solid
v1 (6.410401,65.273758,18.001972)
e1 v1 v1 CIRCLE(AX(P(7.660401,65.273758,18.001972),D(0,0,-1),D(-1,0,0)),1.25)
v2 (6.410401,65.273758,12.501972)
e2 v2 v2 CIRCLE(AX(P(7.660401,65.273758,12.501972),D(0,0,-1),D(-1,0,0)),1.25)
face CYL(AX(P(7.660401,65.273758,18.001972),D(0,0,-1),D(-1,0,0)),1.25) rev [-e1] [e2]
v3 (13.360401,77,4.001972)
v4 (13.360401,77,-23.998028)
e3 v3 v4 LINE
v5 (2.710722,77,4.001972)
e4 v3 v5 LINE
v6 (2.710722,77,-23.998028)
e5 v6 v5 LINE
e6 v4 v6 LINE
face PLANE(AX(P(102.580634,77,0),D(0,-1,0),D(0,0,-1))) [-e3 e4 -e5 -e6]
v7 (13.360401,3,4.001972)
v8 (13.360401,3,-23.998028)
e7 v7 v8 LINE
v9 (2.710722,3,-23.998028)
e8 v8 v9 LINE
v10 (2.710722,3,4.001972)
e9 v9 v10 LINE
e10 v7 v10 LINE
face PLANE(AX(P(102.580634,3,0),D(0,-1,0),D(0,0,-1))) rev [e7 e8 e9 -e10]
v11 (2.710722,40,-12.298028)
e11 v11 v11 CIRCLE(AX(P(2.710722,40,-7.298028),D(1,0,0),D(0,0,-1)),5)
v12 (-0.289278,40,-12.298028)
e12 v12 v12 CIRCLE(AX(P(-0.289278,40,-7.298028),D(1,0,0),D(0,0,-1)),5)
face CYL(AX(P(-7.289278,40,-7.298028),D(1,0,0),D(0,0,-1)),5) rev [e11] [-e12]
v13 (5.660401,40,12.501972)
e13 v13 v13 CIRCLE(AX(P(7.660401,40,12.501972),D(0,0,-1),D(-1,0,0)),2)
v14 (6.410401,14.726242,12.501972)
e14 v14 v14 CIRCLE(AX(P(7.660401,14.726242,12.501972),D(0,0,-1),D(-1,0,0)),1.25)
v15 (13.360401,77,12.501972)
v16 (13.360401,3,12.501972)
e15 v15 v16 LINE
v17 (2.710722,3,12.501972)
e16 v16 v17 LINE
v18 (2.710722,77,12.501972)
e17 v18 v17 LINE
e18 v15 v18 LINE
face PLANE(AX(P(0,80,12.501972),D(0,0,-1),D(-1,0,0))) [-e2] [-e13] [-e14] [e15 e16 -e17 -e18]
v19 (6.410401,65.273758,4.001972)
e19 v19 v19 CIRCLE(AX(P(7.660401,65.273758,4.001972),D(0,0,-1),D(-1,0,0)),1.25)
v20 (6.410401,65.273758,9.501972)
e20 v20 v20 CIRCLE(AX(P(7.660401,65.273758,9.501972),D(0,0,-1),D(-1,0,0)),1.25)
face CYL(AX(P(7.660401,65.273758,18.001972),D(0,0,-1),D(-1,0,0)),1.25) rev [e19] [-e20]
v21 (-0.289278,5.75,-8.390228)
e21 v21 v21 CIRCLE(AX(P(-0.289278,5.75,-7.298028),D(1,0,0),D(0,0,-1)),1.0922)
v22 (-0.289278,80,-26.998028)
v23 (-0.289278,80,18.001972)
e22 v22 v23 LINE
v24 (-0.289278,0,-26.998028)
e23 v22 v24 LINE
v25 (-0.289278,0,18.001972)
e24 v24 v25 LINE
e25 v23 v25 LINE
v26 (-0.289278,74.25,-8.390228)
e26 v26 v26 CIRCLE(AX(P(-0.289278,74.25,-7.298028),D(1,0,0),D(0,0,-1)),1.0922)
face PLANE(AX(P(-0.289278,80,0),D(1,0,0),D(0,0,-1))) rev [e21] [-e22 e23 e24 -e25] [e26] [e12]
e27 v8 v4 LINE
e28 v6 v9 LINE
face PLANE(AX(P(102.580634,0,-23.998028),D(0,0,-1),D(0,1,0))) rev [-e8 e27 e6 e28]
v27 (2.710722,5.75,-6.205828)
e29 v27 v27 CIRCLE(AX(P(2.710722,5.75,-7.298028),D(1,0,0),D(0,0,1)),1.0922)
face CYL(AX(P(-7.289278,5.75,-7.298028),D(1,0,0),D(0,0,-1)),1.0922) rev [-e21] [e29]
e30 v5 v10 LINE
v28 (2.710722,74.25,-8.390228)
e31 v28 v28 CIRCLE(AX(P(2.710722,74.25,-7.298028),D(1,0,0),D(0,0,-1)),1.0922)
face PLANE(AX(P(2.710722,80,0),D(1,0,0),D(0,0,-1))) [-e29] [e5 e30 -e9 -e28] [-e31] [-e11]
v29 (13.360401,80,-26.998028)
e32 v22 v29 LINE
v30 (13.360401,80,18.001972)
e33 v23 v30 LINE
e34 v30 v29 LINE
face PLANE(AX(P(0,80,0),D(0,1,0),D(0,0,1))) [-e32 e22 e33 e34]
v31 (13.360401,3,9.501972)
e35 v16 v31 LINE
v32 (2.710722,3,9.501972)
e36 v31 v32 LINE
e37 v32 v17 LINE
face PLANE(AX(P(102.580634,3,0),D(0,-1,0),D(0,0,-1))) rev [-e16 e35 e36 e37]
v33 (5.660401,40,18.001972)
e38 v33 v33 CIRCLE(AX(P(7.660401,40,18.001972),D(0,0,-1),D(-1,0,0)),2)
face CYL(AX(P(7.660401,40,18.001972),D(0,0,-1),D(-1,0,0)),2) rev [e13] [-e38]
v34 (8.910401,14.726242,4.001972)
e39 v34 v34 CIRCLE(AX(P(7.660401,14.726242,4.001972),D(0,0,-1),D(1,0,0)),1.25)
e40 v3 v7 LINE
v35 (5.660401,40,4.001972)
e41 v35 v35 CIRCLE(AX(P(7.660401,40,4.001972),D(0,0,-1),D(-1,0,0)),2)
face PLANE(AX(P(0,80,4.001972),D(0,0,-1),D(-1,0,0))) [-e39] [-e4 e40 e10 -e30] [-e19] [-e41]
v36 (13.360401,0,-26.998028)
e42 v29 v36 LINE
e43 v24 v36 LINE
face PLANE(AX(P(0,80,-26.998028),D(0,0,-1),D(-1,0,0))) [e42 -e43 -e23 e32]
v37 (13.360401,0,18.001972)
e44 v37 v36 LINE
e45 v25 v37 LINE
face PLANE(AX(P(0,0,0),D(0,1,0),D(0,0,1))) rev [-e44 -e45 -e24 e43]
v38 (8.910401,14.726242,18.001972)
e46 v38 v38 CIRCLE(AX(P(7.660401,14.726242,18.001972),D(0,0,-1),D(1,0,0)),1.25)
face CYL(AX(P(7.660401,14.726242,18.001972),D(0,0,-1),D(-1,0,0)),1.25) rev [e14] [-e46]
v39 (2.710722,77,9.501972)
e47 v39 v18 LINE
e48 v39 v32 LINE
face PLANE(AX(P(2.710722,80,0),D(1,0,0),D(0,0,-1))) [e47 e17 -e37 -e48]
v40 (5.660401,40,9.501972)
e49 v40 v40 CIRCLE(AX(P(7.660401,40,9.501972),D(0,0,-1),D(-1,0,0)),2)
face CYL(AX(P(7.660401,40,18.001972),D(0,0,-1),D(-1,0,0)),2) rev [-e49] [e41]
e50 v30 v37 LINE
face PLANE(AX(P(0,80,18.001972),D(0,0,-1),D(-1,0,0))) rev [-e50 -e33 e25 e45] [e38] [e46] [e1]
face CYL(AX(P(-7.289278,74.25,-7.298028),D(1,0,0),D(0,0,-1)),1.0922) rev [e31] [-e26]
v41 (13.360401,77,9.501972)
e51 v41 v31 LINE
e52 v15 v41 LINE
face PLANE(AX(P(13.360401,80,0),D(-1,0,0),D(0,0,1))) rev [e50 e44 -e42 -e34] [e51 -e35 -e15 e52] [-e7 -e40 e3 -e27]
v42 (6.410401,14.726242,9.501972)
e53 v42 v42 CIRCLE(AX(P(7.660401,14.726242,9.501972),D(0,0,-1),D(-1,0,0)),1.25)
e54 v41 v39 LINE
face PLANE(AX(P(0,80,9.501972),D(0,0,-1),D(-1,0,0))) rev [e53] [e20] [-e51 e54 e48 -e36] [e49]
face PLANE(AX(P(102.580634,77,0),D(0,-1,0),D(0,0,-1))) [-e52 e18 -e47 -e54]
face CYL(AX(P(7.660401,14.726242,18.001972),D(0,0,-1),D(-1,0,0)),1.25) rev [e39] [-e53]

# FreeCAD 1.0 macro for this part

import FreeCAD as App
import Part
import Sketcher
Q = App.Units.Quantity

doc = App.newDocument("Part")
body = doc.addObject("PartDesign::Body", "Body")

# Sketch on XZ plane
sketch1 = body.newObject("Sketcher::SketchObject", "Sketch")
sketch1.AttachmentSupport = (doc.getObject("XZ_Plane"), [""])
sketch1.MapMode = "FlatFace"
sketch1.addGeometry([
    Part.LineSegment(App.Vector(2.7, 9.5, 0), App.Vector(13.4, 9.5, 0)),  # 0
    Part.LineSegment(App.Vector(13.4, 9.5, 0), App.Vector(13.4, 4, 0)),  # 1
    Part.LineSegment(App.Vector(13.4, 4, 0), App.Vector(2.7, 4, 0)),  # 2
    Part.LineSegment(App.Vector(2.7, 4, 0), App.Vector(2.7, -27, 0)),  # 3
    Part.LineSegment(App.Vector(2.7, -27, 0), App.Vector(-0.3, -27, 0)),  # 4
    Part.LineSegment(App.Vector(-0.3, -27, 0), App.Vector(-0.3, 18, 0)),  # 5
    Part.LineSegment(App.Vector(-0.3, 18, 0), App.Vector(13.4, 18, 0)),  # 6
    Part.LineSegment(App.Vector(13.4, 18, 0), App.Vector(13.4, 12.5, 0)),  # 7
    Part.LineSegment(App.Vector(13.4, 12.5, 0), App.Vector(2.7, 12.5, 0)),  # 8
    Part.LineSegment(App.Vector(2.7, 12.5, 0), App.Vector(2.7, 9.5, 0)),  # 9
], False)
sketch1.addConstraint([
    Sketcher.Constraint("Coincident", 0, 2, 1, 1),
    Sketcher.Constraint("Coincident", 1, 2, 2, 1),
    Sketcher.Constraint("Coincident", 2, 2, 3, 1),
    Sketcher.Constraint("Coincident", 3, 2, 4, 1),
    Sketcher.Constraint("Coincident", 4, 2, 5, 1),
    Sketcher.Constraint("Coincident", 5, 2, 6, 1),
    Sketcher.Constraint("Coincident", 6, 2, 7, 1),
    Sketcher.Constraint("Coincident", 7, 2, 8, 1),
    Sketcher.Constraint("Coincident", 8, 2, 9, 1),
    Sketcher.Constraint("Coincident", 9, 2, 0, 1),
    Sketcher.Constraint("Horizontal", 0),
    Sketcher.Constraint("Vertical", 1),
    Sketcher.Constraint("Horizontal", 2),
    Sketcher.Constraint("Vertical", 3),
    Sketcher.Constraint("Horizontal", 4),
    Sketcher.Constraint("Vertical", 5),
    Sketcher.Constraint("Horizontal", 6),
    Sketcher.Constraint("Vertical", 7),
    Sketcher.Constraint("Horizontal", 8),
    Sketcher.Constraint("Vertical", 9),
    Sketcher.Constraint("Vertical", 1, 2, 6, 2),
    Sketcher.Constraint("Vertical", 3, 2, 8, 2),
    Sketcher.Constraint("Equal", 1, 7),
    Sketcher.Constraint("Equal", 4, 9),
    Sketcher.Constraint("DistanceX", 4, 2, 4, 1, Q("3 mm")),
    Sketcher.Constraint("DistanceY", 3, 2, 3, 1, Q("31 mm")),
    Sketcher.Constraint("DistanceY", 5, 1, 5, 2, Q("45 mm")),
    Sketcher.Constraint("DistanceX", 0, 1, 0, 2, Q("10.649679 mm")),
    Sketcher.Constraint("DistanceX", -1, 1, 0, 2, Q("13.360401 mm")),
    Sketcher.Constraint("DistanceY", -1, 1, 0, 2, Q("9.501972 mm")),
])
pad1 = body.newObject("PartDesign::Pad", "Pad")
pad1.Profile = sketch1
pad1.Length = 80
pad1.Reversed = True

# Sketch on XY plane
sketch2 = body.newObject("Sketcher::SketchObject", "Sketch001")
sketch2.AttachmentSupport = (doc.getObject("XY_Plane"), [""])
sketch2.MapMode = "FlatFace"
sketch2.AttachmentOffset = App.Placement(App.Vector(0, 0, 4.001972), App.Rotation())
sketch2.addGeometry([
    Part.Circle(App.Vector(7.7, 40, 0), App.Vector(0, 0, 1), 2),
    Part.Circle(App.Vector(7.7, 65.3, 0), App.Vector(0, 0, 1), 1.2),
    Part.Circle(App.Vector(7.7, 14.7, 0), App.Vector(0, 0, 1), 1.2),
], False)
sketch2.addConstraint([
    Sketcher.Constraint("Equal", 1, 2),
    Sketcher.Constraint("Vertical", 0, 3, 1, 3),
    Sketcher.Constraint("Vertical", 1, 3, 2, 3),
    Sketcher.Constraint("Diameter", 0, Q("4 mm")),
    Sketcher.Constraint("Diameter", 1, Q("2.5 mm")),
    Sketcher.Constraint("DistanceY", -1, 1, 0, 3, Q("40 mm")),
    Sketcher.Constraint("DistanceX", -1, 1, 0, 3, Q("7.660401 mm")),
    Sketcher.Constraint("DistanceY", -1, 1, 1, 3, Q("65.273758 mm")),
    Sketcher.Constraint("DistanceY", -1, 1, 2, 3, Q("14.726242 mm")),
])
pocket1 = body.newObject("PartDesign::Pocket", "Pocket")
pocket1.Profile = sketch2
pocket1.Type = "ThroughAll"
pocket1.Reversed = True

# Sketch on YZ plane
sketch3 = body.newObject("Sketcher::SketchObject", "Sketch002")
sketch3.AttachmentSupport = (doc.getObject("YZ_Plane"), [""])
sketch3.MapMode = "FlatFace"
sketch3.AttachmentOffset = App.Placement(App.Vector(0, 0, 2.710722), App.Rotation())
sketch3.addGeometry([
    Part.Circle(App.Vector(40, -7.3, 0), App.Vector(0, 0, 1), 5),
    Part.Circle(App.Vector(74.2, -7.3, 0), App.Vector(0, 0, 1), 1.1),
    Part.Circle(App.Vector(5.8, -7.3, 0), App.Vector(0, 0, 1), 1.1),
], False)
sketch3.addConstraint([
    Sketcher.Constraint("Equal", 1, 2),
    Sketcher.Constraint("Horizontal", 0, 3, 1, 3),
    Sketcher.Constraint("Horizontal", 1, 3, 2, 3),
    Sketcher.Constraint("Diameter", 0, Q("10 mm")),
    Sketcher.Constraint("DistanceX", -1, 1, 0, 3, Q("40 mm")),
    Sketcher.Constraint("Diameter", 1, Q("2.1844 mm")),
    Sketcher.Constraint("DistanceX", 2, 3, 1, 3, Q("68.5 mm")),
    Sketcher.Constraint("DistanceX", -1, 1, 1, 3, Q("74.25 mm")),
    Sketcher.Constraint("DistanceY", 0, 3, -1, 1, Q("7.298028 mm")),
])
pocket2 = body.newObject("PartDesign::Pocket", "Pocket001")
pocket2.Profile = sketch3
pocket2.Length = 10

# Sketch on YZ plane
sketch4 = body.newObject("Sketcher::SketchObject", "Sketch003")
sketch4.AttachmentSupport = (doc.getObject("YZ_Plane"), [""])
sketch4.MapMode = "FlatFace"
sketch4.AttachmentOffset = App.Placement(App.Vector(0, 0, 2.710722), App.Rotation())
sketch4.addGeometry([
    Part.LineSegment(App.Vector(0, -27, 0), App.Vector(80, -27, 0)),  # 0
    Part.LineSegment(App.Vector(80, -27, 0), App.Vector(80, 12.5, 0)),  # 1
    Part.LineSegment(App.Vector(80, 12.5, 0), App.Vector(77, 12.5, 0)),  # 2
    Part.LineSegment(App.Vector(77, 12.5, 0), App.Vector(77, -24, 0)),  # 3
    Part.LineSegment(App.Vector(77, -24, 0), App.Vector(3, -24, 0)),  # 4
    Part.LineSegment(App.Vector(3, -24, 0), App.Vector(3, 12.5, 0)),  # 5
    Part.LineSegment(App.Vector(3, 12.5, 0), App.Vector(0, 12.5, 0)),  # 6
    Part.LineSegment(App.Vector(0, 12.5, 0), App.Vector(0, -27, 0)),  # 7
], False)
sketch4.addConstraint([
    Sketcher.Constraint("Coincident", 0, 2, 1, 1),
    Sketcher.Constraint("Coincident", 1, 2, 2, 1),
    Sketcher.Constraint("Coincident", 2, 2, 3, 1),
    Sketcher.Constraint("Coincident", 3, 2, 4, 1),
    Sketcher.Constraint("Coincident", 4, 2, 5, 1),
    Sketcher.Constraint("Coincident", 5, 2, 6, 1),
    Sketcher.Constraint("Coincident", 6, 2, 7, 1),
    Sketcher.Constraint("Coincident", 7, 2, 0, 1),
    Sketcher.Constraint("Horizontal", 0),
    Sketcher.Constraint("Vertical", 1),
    Sketcher.Constraint("Horizontal", 2),
    Sketcher.Constraint("Vertical", 3),
    Sketcher.Constraint("Horizontal", 4),
    Sketcher.Constraint("Vertical", 5),
    Sketcher.Constraint("Horizontal", 6),
    Sketcher.Constraint("Vertical", 7),
    Sketcher.Constraint("PointOnObject", 6, 2, -2),
    Sketcher.Constraint("Horizontal", 2, 2, 5, 2),
    Sketcher.Constraint("Equal", 2, 6),
    Sketcher.Constraint("DistanceX", 0, 1, 0, 2, Q("80 mm")),
    Sketcher.Constraint("DistanceX", 2, 2, 2, 1, Q("3 mm")),
    Sketcher.Constraint("DistanceY", 1, 1, 1, 2, Q("39.5 mm")),
    Sketcher.Constraint("DistanceY", 3, 2, 3, 1, Q("36.5 mm")),
    Sketcher.Constraint("DistanceY", 0, 2, -1, 1, Q("26.998028 mm")),
])
pad2 = body.newObject("PartDesign::Pad", "Pad001")
pad2.Profile = sketch4
pad2.Length = 10.649679

doc.recompute()
